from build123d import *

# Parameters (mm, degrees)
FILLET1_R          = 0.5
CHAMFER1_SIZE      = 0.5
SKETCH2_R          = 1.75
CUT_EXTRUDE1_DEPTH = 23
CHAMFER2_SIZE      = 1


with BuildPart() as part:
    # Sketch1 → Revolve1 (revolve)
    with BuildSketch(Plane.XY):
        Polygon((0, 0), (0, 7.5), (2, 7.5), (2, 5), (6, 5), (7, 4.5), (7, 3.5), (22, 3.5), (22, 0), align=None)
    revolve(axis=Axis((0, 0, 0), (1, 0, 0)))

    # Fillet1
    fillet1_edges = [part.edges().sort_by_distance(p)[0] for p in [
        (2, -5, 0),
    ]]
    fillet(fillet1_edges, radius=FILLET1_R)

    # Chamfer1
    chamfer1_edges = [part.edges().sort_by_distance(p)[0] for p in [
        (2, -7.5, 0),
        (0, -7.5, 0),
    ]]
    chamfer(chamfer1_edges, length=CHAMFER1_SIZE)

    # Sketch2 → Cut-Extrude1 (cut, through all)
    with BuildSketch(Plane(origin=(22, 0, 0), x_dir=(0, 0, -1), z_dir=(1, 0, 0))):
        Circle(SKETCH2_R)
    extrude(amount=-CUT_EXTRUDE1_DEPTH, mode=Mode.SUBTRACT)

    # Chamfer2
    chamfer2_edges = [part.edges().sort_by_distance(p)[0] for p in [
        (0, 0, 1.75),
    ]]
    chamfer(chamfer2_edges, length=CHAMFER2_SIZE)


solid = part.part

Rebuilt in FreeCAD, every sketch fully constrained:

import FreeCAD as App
import Part
import Sketcher

V = App.Vector
Q = App.Units.Quantity


def edges_at(feature, points):
    """Names of the edges that pass closest to the given points."""
    edges = feature.Shape.Edges
    near = lambda p: min(range(len(edges)), key=lambda i: edges[i].distToShape(Part.Vertex(*p))[0])
    return sorted({f"Edge{near(p) + 1}" for p in points})


def add_polygon(sketch, points):
    """Adds a closed chain of lines whose ends are joined by coincident constraints."""
    first, n = sketch.GeometryCount, len(points)
    for a, b in zip(points, points[1:] + points[:1]):
        sketch.addGeometry(Part.LineSegment(App.Vector(*a, 0), App.Vector(*b, 0)), False)
    for i in range(n):
        sketch.addConstraint(Sketcher.Constraint("Coincident", first + i, 2, first + (i + 1) % n, 1))

doc = App.newDocument("Part")
body = doc.addObject("PartDesign::Body", "Body")

# Sketch on XY plane
sketch1 = body.newObject("Sketcher::SketchObject", "Sketch")
sketch1.AttachmentSupport = (doc.getObject("XY_Plane"), [""])
sketch1.MapMode = "FlatFace"
add_polygon(sketch1, [(0, 7.5), (0, 0), (22, 0), (22, 3.5), (7, 3.5), (7, 4.5), (6, 5), (2, 5), (2, 7.5)])  # lines 0-8
sketch1.addConstraint(Sketcher.Constraint("Vertical", 0))
sketch1.addConstraint(Sketcher.Constraint("Horizontal", 1))
sketch1.addConstraint(Sketcher.Constraint("Vertical", 2))
sketch1.addConstraint(Sketcher.Constraint("Horizontal", 3))
sketch1.addConstraint(Sketcher.Constraint("Vertical", 4))
sketch1.addConstraint(Sketcher.Constraint("Horizontal", 6))
sketch1.addConstraint(Sketcher.Constraint("Vertical", 7))
sketch1.addConstraint(Sketcher.Constraint("Horizontal", 8))
sketch1.addConstraint(Sketcher.Constraint("Coincident", 0, 2, -1, 1))
sketch1.addConstraint(Sketcher.Constraint("DistanceX", 1, 1, 1, 2, Q("22 mm")))
sketch1.addConstraint(Sketcher.Constraint("DistanceX", 3, 2, 3, 1, Q("15 mm")))
sketch1.addConstraint(Sketcher.Constraint("DistanceX", 6, 2, 6, 1, Q("4 mm")))
sketch1.addConstraint(Sketcher.Constraint("DistanceX", 8, 2, 8, 1, Q("2 mm")))
sketch1.addConstraint(Sketcher.Constraint("DistanceY", 4, 1, 4, 2, Q("1 mm")))
sketch1.addConstraint(Sketcher.Constraint("DistanceY", 0, 2, 0, 1, Q("7.5 mm")))
sketch1.addConstraint(Sketcher.Constraint("DistanceY", 2, 1, 2, 2, Q("3.5 mm")))
sketch1.addConstraint(Sketcher.Constraint("DistanceY", 7, 1, 7, 2, Q("2.5 mm")))
revolution = body.newObject("PartDesign::Revolution", "Revolution")
revolution.Profile = sketch1
revolution.ReferenceAxis = (sketch1, ["H_Axis"])
revolution.Angle = 360
doc.recompute()

fillet = body.newObject("PartDesign::Fillet", "Fillet")
fillet.Base = (revolution, edges_at(revolution, [(2, -5, 0)]))
fillet.Radius = 0.5
doc.recompute()

chamfer = body.newObject("PartDesign::Chamfer", "Chamfer")
chamfer.Base = (fillet, edges_at(fillet, [(2, -7.5, 0), (0, -7.5, 0)]))
chamfer.Size = 0.5

# Sketch on YZ plane
sketch2 = body.newObject("Sketcher::SketchObject", "Sketch001")
sketch2.AttachmentSupport = (doc.getObject("YZ_Plane"), [""])
sketch2.MapMode = "FlatFace"
sketch2.AttachmentOffset = App.Placement(V(0, 0, 22), App.Rotation())
sketch2.addGeometry(Part.Circle(V(0, 0, 0), V(0, 0, 1), 1.8), False)
sketch2.addConstraint(Sketcher.Constraint("Coincident", 0, 3, -1, 1))
sketch2.addConstraint(Sketcher.Constraint("Diameter", 0, Q("3.5 mm")))
pocket1 = body.newObject("PartDesign::Pocket", "Pocket")
pocket1.Profile = sketch2
pocket1.Type = "ThroughAll"
doc.recompute()

chamfer2 = body.newObject("PartDesign::Chamfer", "Chamfer001")
chamfer2.Base = (pocket1, edges_at(pocket1, [(0, 0, 1.75)]))
chamfer2.Size = 1

doc.recompute()
